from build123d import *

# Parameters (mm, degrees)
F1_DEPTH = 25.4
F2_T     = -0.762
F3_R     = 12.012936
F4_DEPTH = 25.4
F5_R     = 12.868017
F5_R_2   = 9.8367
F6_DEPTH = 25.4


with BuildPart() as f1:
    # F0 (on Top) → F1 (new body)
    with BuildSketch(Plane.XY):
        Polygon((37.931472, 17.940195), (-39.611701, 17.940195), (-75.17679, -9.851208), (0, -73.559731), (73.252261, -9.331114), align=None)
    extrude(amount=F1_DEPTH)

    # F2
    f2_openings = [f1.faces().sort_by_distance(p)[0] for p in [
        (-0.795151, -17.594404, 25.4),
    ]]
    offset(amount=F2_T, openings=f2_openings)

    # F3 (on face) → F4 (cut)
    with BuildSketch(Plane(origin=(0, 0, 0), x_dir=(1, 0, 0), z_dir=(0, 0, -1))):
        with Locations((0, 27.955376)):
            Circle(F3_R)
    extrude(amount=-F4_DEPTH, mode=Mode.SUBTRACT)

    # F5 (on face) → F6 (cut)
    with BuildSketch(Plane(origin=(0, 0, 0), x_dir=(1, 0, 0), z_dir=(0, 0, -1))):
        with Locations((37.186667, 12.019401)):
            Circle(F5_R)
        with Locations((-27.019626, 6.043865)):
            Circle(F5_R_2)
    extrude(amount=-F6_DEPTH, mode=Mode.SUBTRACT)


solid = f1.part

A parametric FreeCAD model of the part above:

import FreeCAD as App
import Part
import Sketcher

V = App.Vector
Q = App.Units.Quantity


def faces_at(feature, points):
    """Names of the faces that lie closest to the given points."""
    faces = feature.Shape.Faces
    near = lambda p: min(range(len(faces)), key=lambda i: faces[i].distToShape(Part.Vertex(*p))[0])
    return sorted({f"Face{near(p) + 1}" for p in points})


def add_polygon(sketch, points):
    """Adds a closed chain of lines whose ends are joined by coincident constraints."""
    first, n = sketch.GeometryCount, len(points)
    for a, b in zip(points, points[1:] + points[:1]):
        sketch.addGeometry(Part.LineSegment(App.Vector(*a, 0), App.Vector(*b, 0)), False)
    for i in range(n):
        sketch.addConstraint(Sketcher.Constraint("Coincident", first + i, 2, first + (i + 1) % n, 1))

doc = App.newDocument("Part")
body = doc.addObject("PartDesign::Body", "Body")

sketch1 = doc.addObject("Sketcher::SketchObject", "Sketch")
body.addObject(sketch1)
sketch1.AttachmentSupport = (doc.XY_Plane, [""])
sketch1.MapMode = "FlatFace"
add_polygon(sketch1, [(38, 18), (-40, 18), (-75, -10), (0, -74), (73, -9)])
sketch1.addConstraint([
    Sketcher.Constraint("Horizontal", 0),
    Sketcher.Constraint("PointOnObject", 2, 2, -2),
    Sketcher.Constraint("DistanceX", 0, 2, -1, 1, Q("39.611701 mm")),
    Sketcher.Constraint("Distance", 1, Q("45.135769 mm")),
    Sketcher.Constraint("DistanceX", 0, 2, 0, 1, Q("77.543173 mm")),
    Sketcher.Constraint("DistanceX", 1, 2, -1, 1, Q("75.17679 mm")),
    Sketcher.Constraint("DistanceY", 2, 2, -1, 1, Q("73.559731 mm")),
    Sketcher.Constraint("DistanceX", -1, 1, 3, 2, Q("73.252261 mm")),
    Sketcher.Constraint("DistanceY", 3, 2, 0, 2, Q("27.271309 mm")),
    Sketcher.Constraint("Distance", 2, Q("98.540985 mm")),
])
pad1 = doc.addObject("PartDesign::Pad", "Pad")
body.addObject(pad1)
pad1.Profile = sketch1
pad1.Length = Q("1 in")
doc.recompute()

thickness = doc.addObject("PartDesign::Thickness", "Thickness")
body.addObject(thickness)
thickness.Base = (pad1, faces_at(pad1, [(-0.962, -27.81, 25.4)]))
thickness.Value = Q("0.03 in")
thickness.Reversed = True
thickness.Join = "Arc"

sketch2 = doc.addObject("Sketcher::SketchObject", "Sketch001")
body.addObject(sketch2)
sketch2.AttachmentSupport = (doc.XY_Plane, [""])
sketch2.MapMode = "FlatFace"
sketch2.addGeometry(Part.Circle(V(0, -28, 0), V(0, 0, 1), 12), False)
sketch2.addConstraint([
    Sketcher.Constraint("PointOnObject", 0, 3, -2),
    Sketcher.Constraint("Diameter", 0, Q("24.025872 mm")),
    Sketcher.Constraint("DistanceY", 0, 3, -1, 1, Q("27.955376 mm")),
])
pocket1 = doc.addObject("PartDesign::Pocket", "Pocket")
body.addObject(pocket1)
pocket1.Profile = sketch2
pocket1.Length = Q("1 in")
pocket1.Reversed = True

sketch3 = doc.addObject("Sketcher::SketchObject", "Sketch002")
body.addObject(sketch3)
sketch3.AttachmentSupport = (doc.XY_Plane, [""])
sketch3.MapMode = "FlatFace"
sketch3.addGeometry([
    Part.Circle(V(37, -12, 0), V(0, 0, 1), 13),
    Part.Circle(V(-27, -6, 0), V(0, 0, 1), 10),
], False)
sketch3.addConstraint([
    Sketcher.Constraint("Diameter", 1, Q("19.6734 mm")),
    Sketcher.Constraint("Diameter", 0, Q("25.736034 mm")),
    Sketcher.Constraint("DistanceY", 0, 3, -1, 1, Q("12.019401 mm")),
    Sketcher.Constraint("DistanceX", -1, 1, 0, 3, Q("37.186667 mm")),
    Sketcher.Constraint("DistanceX", 1, 3, -1, 1, Q("27.019626 mm")),
    Sketcher.Constraint("DistanceY", 1, 3, -1, 1, Q("6.043865 mm")),
])
pocket2 = doc.addObject("PartDesign::Pocket", "Pocket001")
body.addObject(pocket2)
pocket2.Profile = sketch3
pocket2.Length = Q("1 in")
pocket2.Reversed = True

doc.recompute()
